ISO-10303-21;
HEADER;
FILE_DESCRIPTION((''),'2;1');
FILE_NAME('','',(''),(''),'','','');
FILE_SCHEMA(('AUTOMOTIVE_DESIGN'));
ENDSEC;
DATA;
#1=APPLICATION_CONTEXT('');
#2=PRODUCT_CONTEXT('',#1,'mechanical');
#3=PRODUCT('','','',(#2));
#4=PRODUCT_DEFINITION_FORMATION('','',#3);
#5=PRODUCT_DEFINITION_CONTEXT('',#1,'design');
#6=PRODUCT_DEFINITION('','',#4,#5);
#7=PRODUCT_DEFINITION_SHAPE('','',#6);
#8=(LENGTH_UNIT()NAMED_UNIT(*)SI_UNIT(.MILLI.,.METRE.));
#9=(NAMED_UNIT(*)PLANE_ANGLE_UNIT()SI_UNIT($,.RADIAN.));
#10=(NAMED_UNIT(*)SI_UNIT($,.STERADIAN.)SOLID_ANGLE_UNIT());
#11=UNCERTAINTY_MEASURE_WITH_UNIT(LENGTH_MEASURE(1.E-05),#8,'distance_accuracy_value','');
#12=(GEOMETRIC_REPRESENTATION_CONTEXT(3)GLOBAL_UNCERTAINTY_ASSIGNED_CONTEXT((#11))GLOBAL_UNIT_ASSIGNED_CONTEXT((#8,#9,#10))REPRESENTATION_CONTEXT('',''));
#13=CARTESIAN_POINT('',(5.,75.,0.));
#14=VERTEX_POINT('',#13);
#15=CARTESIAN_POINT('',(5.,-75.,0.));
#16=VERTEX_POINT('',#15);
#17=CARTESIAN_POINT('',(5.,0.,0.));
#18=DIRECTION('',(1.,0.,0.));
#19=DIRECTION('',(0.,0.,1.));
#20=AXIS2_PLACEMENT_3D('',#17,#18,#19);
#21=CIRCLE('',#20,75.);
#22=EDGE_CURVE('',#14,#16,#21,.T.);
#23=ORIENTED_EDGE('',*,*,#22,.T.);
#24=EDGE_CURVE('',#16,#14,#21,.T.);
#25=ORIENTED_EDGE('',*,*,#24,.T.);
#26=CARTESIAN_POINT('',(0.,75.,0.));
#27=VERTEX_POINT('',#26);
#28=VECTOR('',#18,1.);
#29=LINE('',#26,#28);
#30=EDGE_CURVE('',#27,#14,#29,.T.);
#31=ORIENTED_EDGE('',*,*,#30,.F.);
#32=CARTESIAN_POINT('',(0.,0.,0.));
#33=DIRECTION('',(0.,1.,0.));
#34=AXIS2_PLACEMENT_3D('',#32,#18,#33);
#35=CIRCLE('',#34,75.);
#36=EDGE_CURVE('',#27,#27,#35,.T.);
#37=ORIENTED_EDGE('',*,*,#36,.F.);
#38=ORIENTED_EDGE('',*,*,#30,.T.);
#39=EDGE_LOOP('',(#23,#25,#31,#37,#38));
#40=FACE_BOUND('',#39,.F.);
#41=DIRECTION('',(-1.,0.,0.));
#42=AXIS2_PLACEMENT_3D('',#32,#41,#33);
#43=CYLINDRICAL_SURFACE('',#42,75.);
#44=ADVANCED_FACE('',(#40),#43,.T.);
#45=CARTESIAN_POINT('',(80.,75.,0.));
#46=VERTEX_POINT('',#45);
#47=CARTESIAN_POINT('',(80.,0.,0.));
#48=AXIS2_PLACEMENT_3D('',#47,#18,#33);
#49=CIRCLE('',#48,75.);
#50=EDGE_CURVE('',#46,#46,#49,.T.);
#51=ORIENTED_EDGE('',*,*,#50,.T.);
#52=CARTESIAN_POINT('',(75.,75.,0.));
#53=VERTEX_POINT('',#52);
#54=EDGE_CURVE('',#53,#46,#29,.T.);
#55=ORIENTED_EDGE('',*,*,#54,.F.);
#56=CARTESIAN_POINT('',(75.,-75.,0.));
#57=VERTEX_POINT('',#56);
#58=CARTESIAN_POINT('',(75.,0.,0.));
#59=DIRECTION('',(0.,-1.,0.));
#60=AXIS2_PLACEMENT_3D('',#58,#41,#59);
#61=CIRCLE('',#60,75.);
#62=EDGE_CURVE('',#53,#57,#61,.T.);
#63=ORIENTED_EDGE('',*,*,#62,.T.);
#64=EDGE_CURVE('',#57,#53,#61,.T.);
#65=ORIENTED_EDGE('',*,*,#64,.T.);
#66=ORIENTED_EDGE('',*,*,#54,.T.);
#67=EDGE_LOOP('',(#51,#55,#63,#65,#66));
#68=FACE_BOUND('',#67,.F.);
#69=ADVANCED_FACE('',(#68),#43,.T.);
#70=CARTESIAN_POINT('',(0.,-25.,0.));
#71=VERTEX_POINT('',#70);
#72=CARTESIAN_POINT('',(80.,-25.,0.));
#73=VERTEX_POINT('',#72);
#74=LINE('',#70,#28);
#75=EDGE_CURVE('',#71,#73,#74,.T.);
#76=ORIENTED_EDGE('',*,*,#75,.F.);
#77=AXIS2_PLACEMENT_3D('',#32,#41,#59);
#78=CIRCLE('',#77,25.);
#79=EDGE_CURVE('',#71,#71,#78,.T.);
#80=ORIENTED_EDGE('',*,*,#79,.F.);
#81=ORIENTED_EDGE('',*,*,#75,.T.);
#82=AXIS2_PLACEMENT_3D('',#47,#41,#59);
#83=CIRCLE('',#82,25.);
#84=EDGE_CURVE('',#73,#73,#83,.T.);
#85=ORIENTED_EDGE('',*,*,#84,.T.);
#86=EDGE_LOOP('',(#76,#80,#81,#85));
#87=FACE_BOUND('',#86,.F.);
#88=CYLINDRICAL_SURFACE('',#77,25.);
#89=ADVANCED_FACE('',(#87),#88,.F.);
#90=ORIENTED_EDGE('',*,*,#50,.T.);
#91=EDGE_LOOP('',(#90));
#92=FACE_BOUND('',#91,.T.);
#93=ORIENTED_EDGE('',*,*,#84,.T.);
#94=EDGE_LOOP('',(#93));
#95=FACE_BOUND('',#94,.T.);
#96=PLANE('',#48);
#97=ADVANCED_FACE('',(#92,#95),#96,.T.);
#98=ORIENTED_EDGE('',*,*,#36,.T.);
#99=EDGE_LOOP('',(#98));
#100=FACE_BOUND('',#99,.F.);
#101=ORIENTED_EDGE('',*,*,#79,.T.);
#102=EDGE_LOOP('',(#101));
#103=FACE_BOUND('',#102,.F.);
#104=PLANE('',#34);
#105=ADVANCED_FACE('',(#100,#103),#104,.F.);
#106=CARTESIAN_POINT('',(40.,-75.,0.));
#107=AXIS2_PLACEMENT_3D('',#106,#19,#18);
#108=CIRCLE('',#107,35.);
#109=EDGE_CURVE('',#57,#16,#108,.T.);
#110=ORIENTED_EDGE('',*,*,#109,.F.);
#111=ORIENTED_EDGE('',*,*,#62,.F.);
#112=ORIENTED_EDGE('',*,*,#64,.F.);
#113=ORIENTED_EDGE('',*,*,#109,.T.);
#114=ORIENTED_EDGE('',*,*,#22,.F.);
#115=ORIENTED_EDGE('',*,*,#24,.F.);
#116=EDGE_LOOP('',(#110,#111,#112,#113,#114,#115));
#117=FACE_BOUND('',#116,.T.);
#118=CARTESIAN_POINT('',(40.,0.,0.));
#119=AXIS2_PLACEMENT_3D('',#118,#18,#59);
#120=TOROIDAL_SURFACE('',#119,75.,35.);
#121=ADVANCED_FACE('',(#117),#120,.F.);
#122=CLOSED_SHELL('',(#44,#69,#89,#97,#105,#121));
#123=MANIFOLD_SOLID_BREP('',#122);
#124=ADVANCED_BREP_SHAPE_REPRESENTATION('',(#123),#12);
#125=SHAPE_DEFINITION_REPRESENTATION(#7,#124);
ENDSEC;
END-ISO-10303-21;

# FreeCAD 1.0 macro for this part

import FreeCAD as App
import Part
import Sketcher
Q = App.Units.Quantity

doc = App.newDocument("Part")
params = doc.addObject("Spreadsheet::Sheet", "Params")
for row, (alias, value) in enumerate([
    ("sketch1_diameter", "150 mm"),
    ("pad1_length", "80 mm"),
    ("sketch2_diameter", "50 mm"),
    ("pocket1_length", "100 mm"),
    ("sketch3_diameter", "70 mm"),
    ("groove_angle", "360 deg"),
], start=1):
    params.set(f"A{row}", alias)
    params.set(f"B{row}", "=" + value)
    params.setAlias(f"B{row}", alias)

body = doc.addObject("PartDesign::Body", "Body")

# Sketch on YZ plane
sketch1 = body.newObject("Sketcher::SketchObject", "Sketch")
sketch1.AttachmentSupport = (doc.getObject("YZ_Plane"), [""])
sketch1.MapMode = "FlatFace"
sketch1.addGeometry(Part.Circle(App.Vector(0, 0, 0), App.Vector(0, 0, 1), 75), False)
sketch1.addConstraint([
    Sketcher.Constraint("Coincident", 0, 3, -1, 1),
    Sketcher.Constraint("Diameter", 0, Q("150 mm")),
])
sketch1.setExpression("Constraints[1]", "Params.sketch1_diameter")
pad1 = body.newObject("PartDesign::Pad", "Pad")
pad1.Profile = sketch1
pad1.setExpression("Length", "Params.pad1_length")

# Sketch on YZ plane
sketch2 = body.newObject("Sketcher::SketchObject", "Sketch001")
sketch2.AttachmentSupport = (doc.getObject("YZ_Plane"), [""])
sketch2.MapMode = "FlatFace"
sketch2.addGeometry(Part.Circle(App.Vector(0, 0, 0), App.Vector(0, 0, 1), 25), False)
sketch2.addConstraint([
    Sketcher.Constraint("Coincident", 0, 3, -1, 1),
    Sketcher.Constraint("Diameter", 0, Q("50 mm")),
])
sketch2.setExpression("Constraints[1]", "Params.sketch2_diameter")
pocket1 = body.newObject("PartDesign::Pocket", "Pocket")
pocket1.Profile = sketch2
pocket1.setExpression("Length", "Params.pocket1_length")
pocket1.Reversed = True

# Sketch on XY plane
sketch3 = body.newObject("Sketcher::SketchObject", "Sketch002")
sketch3.AttachmentSupport = (doc.getObject("XY_Plane"), [""])
sketch3.MapMode = "FlatFace"
sketch3.addGeometry(Part.Circle(App.Vector(40, -75, 0), App.Vector(0, 0, 1), 35), False)
sketch3.addConstraint([
    Sketcher.Constraint("Diameter", 0, Q("70 mm")),
    Sketcher.Constraint("DistanceX", -1, 1, 0, 3, Q("40 mm")),
    Sketcher.Constraint("DistanceY", 0, 3, -1, 1, Q("75 mm")),
])
sketch3.setExpression("Constraints[0]", "Params.sketch3_diameter")
groove = body.newObject("PartDesign::Groove", "Groove")
groove.Profile = sketch3
groove.ReferenceAxis = (sketch3, ["H_Axis"])
groove.setExpression("Angle", "Params.groove_angle")

doc.recompute()
